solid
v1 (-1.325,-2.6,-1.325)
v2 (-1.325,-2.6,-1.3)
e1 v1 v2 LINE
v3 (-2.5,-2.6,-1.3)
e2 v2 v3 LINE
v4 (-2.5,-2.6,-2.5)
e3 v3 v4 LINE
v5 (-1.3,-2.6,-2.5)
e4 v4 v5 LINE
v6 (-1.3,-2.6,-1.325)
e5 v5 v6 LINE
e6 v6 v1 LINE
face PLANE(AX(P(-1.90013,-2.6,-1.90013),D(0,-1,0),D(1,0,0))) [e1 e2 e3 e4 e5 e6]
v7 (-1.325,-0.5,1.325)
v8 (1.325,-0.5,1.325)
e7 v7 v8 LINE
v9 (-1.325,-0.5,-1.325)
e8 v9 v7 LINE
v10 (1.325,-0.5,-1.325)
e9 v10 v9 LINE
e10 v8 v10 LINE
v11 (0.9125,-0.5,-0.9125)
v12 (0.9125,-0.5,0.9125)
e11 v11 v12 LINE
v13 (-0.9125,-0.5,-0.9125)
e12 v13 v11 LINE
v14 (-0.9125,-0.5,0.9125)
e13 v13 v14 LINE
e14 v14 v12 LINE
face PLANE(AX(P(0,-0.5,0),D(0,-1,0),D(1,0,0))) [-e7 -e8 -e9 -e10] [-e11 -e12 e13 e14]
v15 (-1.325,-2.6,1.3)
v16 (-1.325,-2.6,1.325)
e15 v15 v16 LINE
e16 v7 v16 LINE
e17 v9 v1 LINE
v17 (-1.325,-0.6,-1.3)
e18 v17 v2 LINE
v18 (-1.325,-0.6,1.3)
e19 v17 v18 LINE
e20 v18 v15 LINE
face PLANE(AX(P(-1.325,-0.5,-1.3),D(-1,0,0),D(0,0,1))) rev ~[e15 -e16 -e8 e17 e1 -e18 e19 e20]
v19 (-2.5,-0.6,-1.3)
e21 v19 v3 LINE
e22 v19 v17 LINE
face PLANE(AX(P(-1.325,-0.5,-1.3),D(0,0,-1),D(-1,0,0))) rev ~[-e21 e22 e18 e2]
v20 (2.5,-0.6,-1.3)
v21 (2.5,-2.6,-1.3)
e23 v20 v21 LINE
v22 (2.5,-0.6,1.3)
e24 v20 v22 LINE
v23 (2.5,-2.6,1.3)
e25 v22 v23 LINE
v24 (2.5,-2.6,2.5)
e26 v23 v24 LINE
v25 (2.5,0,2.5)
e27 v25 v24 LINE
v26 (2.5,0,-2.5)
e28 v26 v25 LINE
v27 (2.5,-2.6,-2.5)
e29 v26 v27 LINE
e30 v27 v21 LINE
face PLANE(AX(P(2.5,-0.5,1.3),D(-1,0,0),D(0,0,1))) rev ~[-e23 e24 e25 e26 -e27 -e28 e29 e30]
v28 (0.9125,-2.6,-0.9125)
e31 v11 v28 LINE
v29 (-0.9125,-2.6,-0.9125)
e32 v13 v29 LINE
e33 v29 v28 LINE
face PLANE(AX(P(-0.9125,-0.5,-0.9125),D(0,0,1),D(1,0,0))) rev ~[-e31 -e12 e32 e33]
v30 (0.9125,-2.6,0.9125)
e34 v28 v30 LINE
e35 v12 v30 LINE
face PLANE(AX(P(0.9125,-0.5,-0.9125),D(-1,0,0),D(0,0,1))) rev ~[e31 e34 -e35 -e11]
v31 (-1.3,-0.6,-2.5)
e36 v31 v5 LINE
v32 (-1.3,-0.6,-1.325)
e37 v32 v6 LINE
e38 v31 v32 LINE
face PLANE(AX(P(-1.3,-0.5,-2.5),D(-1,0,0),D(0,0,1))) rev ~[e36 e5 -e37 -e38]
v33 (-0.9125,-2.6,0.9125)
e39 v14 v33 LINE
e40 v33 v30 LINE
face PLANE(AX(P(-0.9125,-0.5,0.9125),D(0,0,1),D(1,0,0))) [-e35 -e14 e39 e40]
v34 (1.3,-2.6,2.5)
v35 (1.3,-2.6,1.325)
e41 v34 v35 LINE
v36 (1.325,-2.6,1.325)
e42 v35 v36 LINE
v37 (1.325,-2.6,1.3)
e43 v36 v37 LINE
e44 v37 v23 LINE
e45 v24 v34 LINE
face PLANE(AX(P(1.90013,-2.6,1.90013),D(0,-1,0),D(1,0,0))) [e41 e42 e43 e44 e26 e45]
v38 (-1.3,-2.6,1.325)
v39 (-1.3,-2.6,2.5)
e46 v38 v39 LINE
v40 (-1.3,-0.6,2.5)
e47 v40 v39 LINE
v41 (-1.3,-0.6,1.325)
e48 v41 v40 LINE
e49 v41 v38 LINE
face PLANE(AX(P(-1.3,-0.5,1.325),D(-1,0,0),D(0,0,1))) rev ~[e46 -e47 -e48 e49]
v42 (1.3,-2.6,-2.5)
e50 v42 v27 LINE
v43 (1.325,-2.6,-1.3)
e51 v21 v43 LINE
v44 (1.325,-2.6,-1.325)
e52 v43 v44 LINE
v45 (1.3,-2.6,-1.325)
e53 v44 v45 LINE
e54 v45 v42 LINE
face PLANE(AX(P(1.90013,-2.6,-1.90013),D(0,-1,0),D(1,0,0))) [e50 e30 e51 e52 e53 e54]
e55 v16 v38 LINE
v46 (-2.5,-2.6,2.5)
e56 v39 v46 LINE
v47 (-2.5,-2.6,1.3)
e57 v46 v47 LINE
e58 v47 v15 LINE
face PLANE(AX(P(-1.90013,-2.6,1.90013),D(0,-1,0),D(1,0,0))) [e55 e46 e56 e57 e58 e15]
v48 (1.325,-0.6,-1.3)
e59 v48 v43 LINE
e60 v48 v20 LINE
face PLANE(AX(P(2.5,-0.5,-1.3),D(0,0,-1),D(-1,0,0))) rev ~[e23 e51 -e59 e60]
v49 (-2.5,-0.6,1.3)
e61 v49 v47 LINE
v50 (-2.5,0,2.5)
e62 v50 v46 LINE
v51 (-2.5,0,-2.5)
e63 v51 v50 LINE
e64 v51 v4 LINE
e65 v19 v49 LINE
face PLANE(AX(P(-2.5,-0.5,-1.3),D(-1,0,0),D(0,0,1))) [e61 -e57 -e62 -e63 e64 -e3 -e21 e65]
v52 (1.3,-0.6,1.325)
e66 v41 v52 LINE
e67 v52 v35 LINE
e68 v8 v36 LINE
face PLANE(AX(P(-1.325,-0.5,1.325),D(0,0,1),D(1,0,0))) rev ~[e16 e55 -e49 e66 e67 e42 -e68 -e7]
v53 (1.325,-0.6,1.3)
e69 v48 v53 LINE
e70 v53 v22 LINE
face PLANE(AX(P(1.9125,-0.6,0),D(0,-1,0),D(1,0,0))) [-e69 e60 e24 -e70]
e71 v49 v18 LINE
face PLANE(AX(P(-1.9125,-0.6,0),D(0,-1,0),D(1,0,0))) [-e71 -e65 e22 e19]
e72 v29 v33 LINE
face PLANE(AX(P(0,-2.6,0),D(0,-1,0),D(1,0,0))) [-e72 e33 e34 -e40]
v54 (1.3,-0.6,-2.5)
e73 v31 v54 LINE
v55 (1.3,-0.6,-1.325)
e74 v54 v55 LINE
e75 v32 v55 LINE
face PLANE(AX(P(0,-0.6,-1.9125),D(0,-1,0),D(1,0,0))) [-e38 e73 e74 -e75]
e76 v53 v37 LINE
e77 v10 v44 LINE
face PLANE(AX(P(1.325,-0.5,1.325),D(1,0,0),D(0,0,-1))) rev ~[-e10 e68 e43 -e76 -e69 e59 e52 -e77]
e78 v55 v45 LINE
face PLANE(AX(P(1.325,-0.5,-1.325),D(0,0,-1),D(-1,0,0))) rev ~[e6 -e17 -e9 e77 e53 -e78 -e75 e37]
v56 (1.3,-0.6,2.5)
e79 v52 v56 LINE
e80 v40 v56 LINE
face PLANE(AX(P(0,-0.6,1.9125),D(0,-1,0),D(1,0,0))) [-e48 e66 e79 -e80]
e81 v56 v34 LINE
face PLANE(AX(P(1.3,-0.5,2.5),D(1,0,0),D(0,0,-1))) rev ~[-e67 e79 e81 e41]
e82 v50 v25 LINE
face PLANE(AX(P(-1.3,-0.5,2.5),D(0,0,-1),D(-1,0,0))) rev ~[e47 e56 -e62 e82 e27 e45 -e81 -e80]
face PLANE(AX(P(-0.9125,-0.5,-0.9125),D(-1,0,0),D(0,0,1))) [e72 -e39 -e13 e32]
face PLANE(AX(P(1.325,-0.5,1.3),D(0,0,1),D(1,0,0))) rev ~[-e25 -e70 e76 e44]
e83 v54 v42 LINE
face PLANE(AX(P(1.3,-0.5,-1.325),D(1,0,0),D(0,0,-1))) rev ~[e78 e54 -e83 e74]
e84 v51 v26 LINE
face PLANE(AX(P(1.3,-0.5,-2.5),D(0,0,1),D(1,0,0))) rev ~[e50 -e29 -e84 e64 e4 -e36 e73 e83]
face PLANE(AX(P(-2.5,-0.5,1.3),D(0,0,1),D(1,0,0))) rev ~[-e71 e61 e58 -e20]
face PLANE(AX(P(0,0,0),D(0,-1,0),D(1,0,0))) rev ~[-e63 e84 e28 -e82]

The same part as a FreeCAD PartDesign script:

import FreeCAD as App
import Part
import Sketcher
Q = App.Units.Quantity


def add_polygon(sketch, points):
    """Adds a closed chain of lines whose ends are joined by coincident constraints."""
    first, n = sketch.GeometryCount, len(points)
    for a, b in zip(points, points[1:] + points[:1]):
        sketch.addGeometry(Part.LineSegment(App.Vector(*a, 0), App.Vector(*b, 0)), False)
    for i in range(n):
        sketch.addConstraint(Sketcher.Constraint("Coincident", first + i, 2, first + (i + 1) % n, 1))

doc = App.newDocument("Part")
body = doc.addObject("PartDesign::Body", "Body")

sketch1 = doc.addObject("Sketcher::SketchObject", "Sketch")
body.addObject(sketch1)
sketch1.AttachmentSupport = (doc.XZ_Plane, [""])
sketch1.MapMode = "FlatFace"
add_polygon(sketch1, [(-2, 2), (-2, -2), (2, -2), (2, 2)])
sketch1.addConstraint([
    Sketcher.Constraint("Vertical", 0),
    Sketcher.Constraint("Horizontal", 1),
    Sketcher.Constraint("Vertical", 2),
    Sketcher.Constraint("Horizontal", 3),
    Sketcher.Constraint("Symmetric", 0, 2, 2, 2, -1, 1),
    Sketcher.Constraint("Equal", 3, 0),
    Sketcher.Constraint("DistanceX", 1, 1, 1, 2, Q("5 mm")),
])
pad1 = doc.addObject("PartDesign::Pad", "Pad")
body.addObject(pad1)
pad1.Profile = sketch1
pad1.Length = 0.5

sketch2 = doc.addObject("Sketcher::SketchObject", "Sketch001")
body.addObject(sketch2)
sketch2.AttachmentSupport = (doc.XZ_Plane, [""])
sketch2.MapMode = "FlatFace"
sketch2.AttachmentOffset = App.Placement(App.Vector(0, 0, 0.5), App.Rotation())
add_polygon(sketch2, [(-0.9, 0.9), (-0.9, -0.9), (0.9, -0.9), (0.9, 0.9)])
sketch2.addConstraint([
    Sketcher.Constraint("Vertical", 0),
    Sketcher.Constraint("Horizontal", 1),
    Sketcher.Constraint("Vertical", 2),
    Sketcher.Constraint("Horizontal", 3),
    Sketcher.Constraint("Symmetric", 0, 2, 2, 2, -1, 1),
    Sketcher.Constraint("Equal", 3, 0),
    Sketcher.Constraint("DistanceX", 1, 1, 1, 2, Q("1.825 mm")),
])
pad2 = doc.addObject("PartDesign::Pad", "Pad001")
body.addObject(pad2)
pad2.Profile = sketch2
pad2.Length = 2.1

sketch3 = doc.addObject("Sketcher::SketchObject", "Sketch002")
body.addObject(sketch3)
sketch3.AttachmentSupport = (doc.XZ_Plane, [""])
sketch3.MapMode = "FlatFace"
sketch3.AttachmentOffset = App.Placement(App.Vector(0, 0, 0.5), App.Rotation())
add_polygon(sketch3, [(-2.5, -1.3), (-2.5, -2.5), (-1.3, -2.5), (-1.3, -1.325), (-1.325, -1.325), (-1.325, -1.3)])
sketch3.addConstraint([
    Sketcher.Constraint("Vertical", 0),
    Sketcher.Constraint("Horizontal", 1),
    Sketcher.Constraint("Vertical", 2),
    Sketcher.Constraint("Horizontal", 3),
    Sketcher.Constraint("Vertical", 4),
    Sketcher.Constraint("Horizontal", 5),
    Sketcher.Constraint("Equal", 1, 0),
    Sketcher.Constraint("Equal", 5, 2),
    Sketcher.Constraint("DistanceX", 1, 1, 1, 2, Q("1.2 mm")),
    Sketcher.Constraint("DistanceX", 0, 2, -1, 1, Q("2.5 mm")),
    Sketcher.Constraint("DistanceY", 0, 2, -1, 1, Q("2.5 mm")),
    Sketcher.Constraint("DistanceX", 3, 2, 3, 1, Q("0.025 mm")),
])
pad3 = doc.addObject("PartDesign::Pad", "Pad002")
body.addObject(pad3)
pad3.Profile = sketch3
pad3.Length = 2.1

sketch4 = doc.addObject("Sketcher::SketchObject", "Sketch003")
body.addObject(sketch4)
sketch4.AttachmentSupport = (doc.XZ_Plane, [""])
sketch4.MapMode = "FlatFace"
sketch4.AttachmentOffset = App.Placement(App.Vector(0, 0, 0.5), App.Rotation())
add_polygon(sketch4, [(-1.3, -1.3), (-1.3, -2.5), (1.3, -2.5), (1.3, -1.3)])
sketch4.addConstraint([
    Sketcher.Constraint("Vertical", 0),
    Sketcher.Constraint("Horizontal", 1),
    Sketcher.Constraint("Vertical", 2),
    Sketcher.Constraint("Horizontal", 3),
    Sketcher.Constraint("DistanceX", 1, 1, 1, 2, Q("2.6 mm")),
    Sketcher.Constraint("DistanceX", 0, 2, -1, 1, Q("1.3 mm")),
    Sketcher.Constraint("DistanceY", 0, 2, -1, 1, Q("2.5 mm")),
    Sketcher.Constraint("DistanceY", 0, 2, 0, 1, Q("1.175 mm")),
])
pad4 = doc.addObject("PartDesign::Pad", "Pad003")
body.addObject(pad4)
pad4.Profile = sketch4
pad4.Length = 0.1

sketch5 = doc.addObject("Sketcher::SketchObject", "Sketch004")
body.addObject(sketch5)
sketch5.AttachmentSupport = (doc.XZ_Plane, [""])
sketch5.MapMode = "FlatFace"
sketch5.AttachmentOffset = App.Placement(App.Vector(0, 0, 0.5), App.Rotation())
add_polygon(sketch5, [(1.3, -1.325), (1.3, -2.5), (2.5, -2.5), (2.5, -1.3), (1.325, -1.3), (1.325, -1.325)])
sketch5.addConstraint([
    Sketcher.Constraint("Vertical", 0),
    Sketcher.Constraint("Horizontal", 1),
    Sketcher.Constraint("Vertical", 2),
    Sketcher.Constraint("Horizontal", 3),
    Sketcher.Constraint("Vertical", 4),
    Sketcher.Constraint("Horizontal", 5),
    Sketcher.Constraint("Equal", 3, 0),
    Sketcher.Constraint("Equal", 1, 2),
    Sketcher.Constraint("DistanceX", 1, 1, 1, 2, Q("1.2 mm")),
    Sketcher.Constraint("DistanceX", -1, 1, 0, 2, Q("1.3 mm")),
    Sketcher.Constraint("DistanceY", 0, 2, -1, 1, Q("2.5 mm")),
    Sketcher.Constraint("DistanceX", 3, 2, 3, 1, Q("1.175 mm")),
])
pad5 = doc.addObject("PartDesign::Pad", "Pad004")
body.addObject(pad5)
pad5.Profile = sketch5
pad5.Length = 2.1

sketch6 = doc.addObject("Sketcher::SketchObject", "Sketch005")
body.addObject(sketch6)
sketch6.AttachmentSupport = (doc.XZ_Plane, [""])
sketch6.MapMode = "FlatFace"
sketch6.AttachmentOffset = App.Placement(App.Vector(0, 0, 0.5), App.Rotation())
add_polygon(sketch6, [(1.3, 1.3), (1.3, -1.3), (2.5, -1.3), (2.5, 1.3)])
sketch6.addConstraint([
    Sketcher.Constraint("Vertical", 0),
    Sketcher.Constraint("Horizontal", 1),
    Sketcher.Constraint("Vertical", 2),
    Sketcher.Constraint("Horizontal", 3),
    Sketcher.Constraint("DistanceY", 0, 2, 0, 1, Q("2.6 mm")),
    Sketcher.Constraint("DistanceY", 0, 2, -1, 1, Q("1.3 mm")),
    Sketcher.Constraint("DistanceX", -1, 1, 1, 2, Q("2.5 mm")),
    Sketcher.Constraint("DistanceX", 1, 1, 1, 2, Q("1.175 mm")),
])
pad6 = doc.addObject("PartDesign::Pad", "Pad005")
body.addObject(pad6)
pad6.Profile = sketch6
pad6.Length = 0.1

sketch7 = doc.addObject("Sketcher::SketchObject", "Sketch006")
body.addObject(sketch7)
sketch7.AttachmentSupport = (doc.XZ_Plane, [""])
sketch7.MapMode = "FlatFace"
sketch7.AttachmentOffset = App.Placement(App.Vector(0, 0, 0.5), App.Rotation())
add_polygon(sketch7, [(1.325, 1.325), (1.325, 1.3), (2.5, 1.3), (2.5, 2.5), (1.3, 2.5), (1.3, 1.325)])
sketch7.addConstraint([
    Sketcher.Constraint("Vertical", 0),
    Sketcher.Constraint("Horizontal", 1),
    Sketcher.Constraint("Vertical", 2),
    Sketcher.Constraint("Horizontal", 3),
    Sketcher.Constraint("Vertical", 4),
    Sketcher.Constraint("Horizontal", 5),
    Sketcher.Constraint("Equal", 5, 0),
    Sketcher.Constraint("Equal", 3, 2),
    Sketcher.Constraint("DistanceX", 3, 2, 3, 1, Q("1.2 mm")),
    Sketcher.Constraint("DistanceY", -1, 1, 0, 2, Q("1.3 mm")),
    Sketcher.Constraint("DistanceX", -1, 1, 1, 2, Q("2.5 mm")),
    Sketcher.Constraint("DistanceX", 1, 1, 1, 2, Q("1.175 mm")),
])
pad7 = doc.addObject("PartDesign::Pad", "Pad006")
body.addObject(pad7)
pad7.Profile = sketch7
pad7.Length = 2.1

sketch8 = doc.addObject("Sketcher::SketchObject", "Sketch007")
body.addObject(sketch8)
sketch8.AttachmentSupport = (doc.XZ_Plane, [""])
sketch8.MapMode = "FlatFace"
sketch8.AttachmentOffset = App.Placement(App.Vector(0, 0, 0.5), App.Rotation())
add_polygon(sketch8, [(-1.3, 2.5), (-1.3, 1.3), (1.3, 1.3), (1.3, 2.5)])
sketch8.addConstraint([
    Sketcher.Constraint("Vertical", 0),
    Sketcher.Constraint("Horizontal", 1),
    Sketcher.Constraint("Vertical", 2),
    Sketcher.Constraint("Horizontal", 3),
    Sketcher.Constraint("DistanceX", 1, 1, 1, 2, Q("2.6 mm")),
    Sketcher.Constraint("DistanceX", 0, 2, -1, 1, Q("1.3 mm")),
    Sketcher.Constraint("DistanceY", -1, 1, 2, 2, Q("2.5 mm")),
    Sketcher.Constraint("DistanceY", 0, 2, 0, 1, Q("1.175 mm")),
])
pad8 = doc.addObject("PartDesign::Pad", "Pad007")
body.addObject(pad8)
pad8.Profile = sketch8
pad8.Length = 0.1

sketch9 = doc.addObject("Sketcher::SketchObject", "Sketch008")
body.addObject(sketch9)
sketch9.AttachmentSupport = (doc.XZ_Plane, [""])
sketch9.MapMode = "FlatFace"
sketch9.AttachmentOffset = App.Placement(App.Vector(0, 0, 0.5), App.Rotation())
add_polygon(sketch9, [(-1.3, 1.325), (-1.3, 2.5), (-2.5, 2.5), (-2.5, 1.3), (-1.325, 1.3), (-1.325, 1.325)])
sketch9.addConstraint([
    Sketcher.Constraint("Vertical", 0),
    Sketcher.Constraint("Horizontal", 1),
    Sketcher.Constraint("Vertical", 2),
    Sketcher.Constraint("Horizontal", 3),
    Sketcher.Constraint("Vertical", 4),
    Sketcher.Constraint("Horizontal", 5),
    Sketcher.Constraint("Equal", 3, 0),
    Sketcher.Constraint("Equal", 1, 2),
    Sketcher.Constraint("DistanceX", 1, 2, 1, 1, Q("1.2 mm")),
    Sketcher.Constraint("DistanceX", 0, 2, -1, 1, Q("1.3 mm")),
    Sketcher.Constraint("DistanceY", -1, 1, 0, 2, Q("2.5 mm")),
    Sketcher.Constraint("DistanceX", 3, 1, 3, 2, Q("1.175 mm")),
])
pad9 = doc.addObject("PartDesign::Pad", "Pad008")
body.addObject(pad9)
pad9.Profile = sketch9
pad9.Length = 2.1

sketch10 = doc.addObject("Sketcher::SketchObject", "Sketch009")
body.addObject(sketch10)
sketch10.AttachmentSupport = (doc.XZ_Plane, [""])
sketch10.MapMode = "FlatFace"
sketch10.AttachmentOffset = App.Placement(App.Vector(0, 0, 0.5), App.Rotation())
add_polygon(sketch10, [(-2.5, 1.3), (-2.5, -1.3), (-1.3, -1.3), (-1.3, 1.3)])
sketch10.addConstraint([
    Sketcher.Constraint("Vertical", 0),
    Sketcher.Constraint("Horizontal", 1),
    Sketcher.Constraint("Vertical", 2),
    Sketcher.Constraint("Horizontal", 3),
    Sketcher.Constraint("DistanceY", 0, 2, 0, 1, Q("2.6 mm")),
    Sketcher.Constraint("DistanceX", 0, 2, -1, 1, Q("2.5 mm")),
    Sketcher.Constraint("DistanceY", 0, 2, -1, 1, Q("1.3 mm")),
    Sketcher.Constraint("DistanceX", 1, 1, 1, 2, Q("1.175 mm")),
])
pad10 = doc.addObject("PartDesign::Pad", "Pad009")
body.addObject(pad10)
pad10.Profile = sketch10
pad10.Length = 0.1

doc.recompute()
